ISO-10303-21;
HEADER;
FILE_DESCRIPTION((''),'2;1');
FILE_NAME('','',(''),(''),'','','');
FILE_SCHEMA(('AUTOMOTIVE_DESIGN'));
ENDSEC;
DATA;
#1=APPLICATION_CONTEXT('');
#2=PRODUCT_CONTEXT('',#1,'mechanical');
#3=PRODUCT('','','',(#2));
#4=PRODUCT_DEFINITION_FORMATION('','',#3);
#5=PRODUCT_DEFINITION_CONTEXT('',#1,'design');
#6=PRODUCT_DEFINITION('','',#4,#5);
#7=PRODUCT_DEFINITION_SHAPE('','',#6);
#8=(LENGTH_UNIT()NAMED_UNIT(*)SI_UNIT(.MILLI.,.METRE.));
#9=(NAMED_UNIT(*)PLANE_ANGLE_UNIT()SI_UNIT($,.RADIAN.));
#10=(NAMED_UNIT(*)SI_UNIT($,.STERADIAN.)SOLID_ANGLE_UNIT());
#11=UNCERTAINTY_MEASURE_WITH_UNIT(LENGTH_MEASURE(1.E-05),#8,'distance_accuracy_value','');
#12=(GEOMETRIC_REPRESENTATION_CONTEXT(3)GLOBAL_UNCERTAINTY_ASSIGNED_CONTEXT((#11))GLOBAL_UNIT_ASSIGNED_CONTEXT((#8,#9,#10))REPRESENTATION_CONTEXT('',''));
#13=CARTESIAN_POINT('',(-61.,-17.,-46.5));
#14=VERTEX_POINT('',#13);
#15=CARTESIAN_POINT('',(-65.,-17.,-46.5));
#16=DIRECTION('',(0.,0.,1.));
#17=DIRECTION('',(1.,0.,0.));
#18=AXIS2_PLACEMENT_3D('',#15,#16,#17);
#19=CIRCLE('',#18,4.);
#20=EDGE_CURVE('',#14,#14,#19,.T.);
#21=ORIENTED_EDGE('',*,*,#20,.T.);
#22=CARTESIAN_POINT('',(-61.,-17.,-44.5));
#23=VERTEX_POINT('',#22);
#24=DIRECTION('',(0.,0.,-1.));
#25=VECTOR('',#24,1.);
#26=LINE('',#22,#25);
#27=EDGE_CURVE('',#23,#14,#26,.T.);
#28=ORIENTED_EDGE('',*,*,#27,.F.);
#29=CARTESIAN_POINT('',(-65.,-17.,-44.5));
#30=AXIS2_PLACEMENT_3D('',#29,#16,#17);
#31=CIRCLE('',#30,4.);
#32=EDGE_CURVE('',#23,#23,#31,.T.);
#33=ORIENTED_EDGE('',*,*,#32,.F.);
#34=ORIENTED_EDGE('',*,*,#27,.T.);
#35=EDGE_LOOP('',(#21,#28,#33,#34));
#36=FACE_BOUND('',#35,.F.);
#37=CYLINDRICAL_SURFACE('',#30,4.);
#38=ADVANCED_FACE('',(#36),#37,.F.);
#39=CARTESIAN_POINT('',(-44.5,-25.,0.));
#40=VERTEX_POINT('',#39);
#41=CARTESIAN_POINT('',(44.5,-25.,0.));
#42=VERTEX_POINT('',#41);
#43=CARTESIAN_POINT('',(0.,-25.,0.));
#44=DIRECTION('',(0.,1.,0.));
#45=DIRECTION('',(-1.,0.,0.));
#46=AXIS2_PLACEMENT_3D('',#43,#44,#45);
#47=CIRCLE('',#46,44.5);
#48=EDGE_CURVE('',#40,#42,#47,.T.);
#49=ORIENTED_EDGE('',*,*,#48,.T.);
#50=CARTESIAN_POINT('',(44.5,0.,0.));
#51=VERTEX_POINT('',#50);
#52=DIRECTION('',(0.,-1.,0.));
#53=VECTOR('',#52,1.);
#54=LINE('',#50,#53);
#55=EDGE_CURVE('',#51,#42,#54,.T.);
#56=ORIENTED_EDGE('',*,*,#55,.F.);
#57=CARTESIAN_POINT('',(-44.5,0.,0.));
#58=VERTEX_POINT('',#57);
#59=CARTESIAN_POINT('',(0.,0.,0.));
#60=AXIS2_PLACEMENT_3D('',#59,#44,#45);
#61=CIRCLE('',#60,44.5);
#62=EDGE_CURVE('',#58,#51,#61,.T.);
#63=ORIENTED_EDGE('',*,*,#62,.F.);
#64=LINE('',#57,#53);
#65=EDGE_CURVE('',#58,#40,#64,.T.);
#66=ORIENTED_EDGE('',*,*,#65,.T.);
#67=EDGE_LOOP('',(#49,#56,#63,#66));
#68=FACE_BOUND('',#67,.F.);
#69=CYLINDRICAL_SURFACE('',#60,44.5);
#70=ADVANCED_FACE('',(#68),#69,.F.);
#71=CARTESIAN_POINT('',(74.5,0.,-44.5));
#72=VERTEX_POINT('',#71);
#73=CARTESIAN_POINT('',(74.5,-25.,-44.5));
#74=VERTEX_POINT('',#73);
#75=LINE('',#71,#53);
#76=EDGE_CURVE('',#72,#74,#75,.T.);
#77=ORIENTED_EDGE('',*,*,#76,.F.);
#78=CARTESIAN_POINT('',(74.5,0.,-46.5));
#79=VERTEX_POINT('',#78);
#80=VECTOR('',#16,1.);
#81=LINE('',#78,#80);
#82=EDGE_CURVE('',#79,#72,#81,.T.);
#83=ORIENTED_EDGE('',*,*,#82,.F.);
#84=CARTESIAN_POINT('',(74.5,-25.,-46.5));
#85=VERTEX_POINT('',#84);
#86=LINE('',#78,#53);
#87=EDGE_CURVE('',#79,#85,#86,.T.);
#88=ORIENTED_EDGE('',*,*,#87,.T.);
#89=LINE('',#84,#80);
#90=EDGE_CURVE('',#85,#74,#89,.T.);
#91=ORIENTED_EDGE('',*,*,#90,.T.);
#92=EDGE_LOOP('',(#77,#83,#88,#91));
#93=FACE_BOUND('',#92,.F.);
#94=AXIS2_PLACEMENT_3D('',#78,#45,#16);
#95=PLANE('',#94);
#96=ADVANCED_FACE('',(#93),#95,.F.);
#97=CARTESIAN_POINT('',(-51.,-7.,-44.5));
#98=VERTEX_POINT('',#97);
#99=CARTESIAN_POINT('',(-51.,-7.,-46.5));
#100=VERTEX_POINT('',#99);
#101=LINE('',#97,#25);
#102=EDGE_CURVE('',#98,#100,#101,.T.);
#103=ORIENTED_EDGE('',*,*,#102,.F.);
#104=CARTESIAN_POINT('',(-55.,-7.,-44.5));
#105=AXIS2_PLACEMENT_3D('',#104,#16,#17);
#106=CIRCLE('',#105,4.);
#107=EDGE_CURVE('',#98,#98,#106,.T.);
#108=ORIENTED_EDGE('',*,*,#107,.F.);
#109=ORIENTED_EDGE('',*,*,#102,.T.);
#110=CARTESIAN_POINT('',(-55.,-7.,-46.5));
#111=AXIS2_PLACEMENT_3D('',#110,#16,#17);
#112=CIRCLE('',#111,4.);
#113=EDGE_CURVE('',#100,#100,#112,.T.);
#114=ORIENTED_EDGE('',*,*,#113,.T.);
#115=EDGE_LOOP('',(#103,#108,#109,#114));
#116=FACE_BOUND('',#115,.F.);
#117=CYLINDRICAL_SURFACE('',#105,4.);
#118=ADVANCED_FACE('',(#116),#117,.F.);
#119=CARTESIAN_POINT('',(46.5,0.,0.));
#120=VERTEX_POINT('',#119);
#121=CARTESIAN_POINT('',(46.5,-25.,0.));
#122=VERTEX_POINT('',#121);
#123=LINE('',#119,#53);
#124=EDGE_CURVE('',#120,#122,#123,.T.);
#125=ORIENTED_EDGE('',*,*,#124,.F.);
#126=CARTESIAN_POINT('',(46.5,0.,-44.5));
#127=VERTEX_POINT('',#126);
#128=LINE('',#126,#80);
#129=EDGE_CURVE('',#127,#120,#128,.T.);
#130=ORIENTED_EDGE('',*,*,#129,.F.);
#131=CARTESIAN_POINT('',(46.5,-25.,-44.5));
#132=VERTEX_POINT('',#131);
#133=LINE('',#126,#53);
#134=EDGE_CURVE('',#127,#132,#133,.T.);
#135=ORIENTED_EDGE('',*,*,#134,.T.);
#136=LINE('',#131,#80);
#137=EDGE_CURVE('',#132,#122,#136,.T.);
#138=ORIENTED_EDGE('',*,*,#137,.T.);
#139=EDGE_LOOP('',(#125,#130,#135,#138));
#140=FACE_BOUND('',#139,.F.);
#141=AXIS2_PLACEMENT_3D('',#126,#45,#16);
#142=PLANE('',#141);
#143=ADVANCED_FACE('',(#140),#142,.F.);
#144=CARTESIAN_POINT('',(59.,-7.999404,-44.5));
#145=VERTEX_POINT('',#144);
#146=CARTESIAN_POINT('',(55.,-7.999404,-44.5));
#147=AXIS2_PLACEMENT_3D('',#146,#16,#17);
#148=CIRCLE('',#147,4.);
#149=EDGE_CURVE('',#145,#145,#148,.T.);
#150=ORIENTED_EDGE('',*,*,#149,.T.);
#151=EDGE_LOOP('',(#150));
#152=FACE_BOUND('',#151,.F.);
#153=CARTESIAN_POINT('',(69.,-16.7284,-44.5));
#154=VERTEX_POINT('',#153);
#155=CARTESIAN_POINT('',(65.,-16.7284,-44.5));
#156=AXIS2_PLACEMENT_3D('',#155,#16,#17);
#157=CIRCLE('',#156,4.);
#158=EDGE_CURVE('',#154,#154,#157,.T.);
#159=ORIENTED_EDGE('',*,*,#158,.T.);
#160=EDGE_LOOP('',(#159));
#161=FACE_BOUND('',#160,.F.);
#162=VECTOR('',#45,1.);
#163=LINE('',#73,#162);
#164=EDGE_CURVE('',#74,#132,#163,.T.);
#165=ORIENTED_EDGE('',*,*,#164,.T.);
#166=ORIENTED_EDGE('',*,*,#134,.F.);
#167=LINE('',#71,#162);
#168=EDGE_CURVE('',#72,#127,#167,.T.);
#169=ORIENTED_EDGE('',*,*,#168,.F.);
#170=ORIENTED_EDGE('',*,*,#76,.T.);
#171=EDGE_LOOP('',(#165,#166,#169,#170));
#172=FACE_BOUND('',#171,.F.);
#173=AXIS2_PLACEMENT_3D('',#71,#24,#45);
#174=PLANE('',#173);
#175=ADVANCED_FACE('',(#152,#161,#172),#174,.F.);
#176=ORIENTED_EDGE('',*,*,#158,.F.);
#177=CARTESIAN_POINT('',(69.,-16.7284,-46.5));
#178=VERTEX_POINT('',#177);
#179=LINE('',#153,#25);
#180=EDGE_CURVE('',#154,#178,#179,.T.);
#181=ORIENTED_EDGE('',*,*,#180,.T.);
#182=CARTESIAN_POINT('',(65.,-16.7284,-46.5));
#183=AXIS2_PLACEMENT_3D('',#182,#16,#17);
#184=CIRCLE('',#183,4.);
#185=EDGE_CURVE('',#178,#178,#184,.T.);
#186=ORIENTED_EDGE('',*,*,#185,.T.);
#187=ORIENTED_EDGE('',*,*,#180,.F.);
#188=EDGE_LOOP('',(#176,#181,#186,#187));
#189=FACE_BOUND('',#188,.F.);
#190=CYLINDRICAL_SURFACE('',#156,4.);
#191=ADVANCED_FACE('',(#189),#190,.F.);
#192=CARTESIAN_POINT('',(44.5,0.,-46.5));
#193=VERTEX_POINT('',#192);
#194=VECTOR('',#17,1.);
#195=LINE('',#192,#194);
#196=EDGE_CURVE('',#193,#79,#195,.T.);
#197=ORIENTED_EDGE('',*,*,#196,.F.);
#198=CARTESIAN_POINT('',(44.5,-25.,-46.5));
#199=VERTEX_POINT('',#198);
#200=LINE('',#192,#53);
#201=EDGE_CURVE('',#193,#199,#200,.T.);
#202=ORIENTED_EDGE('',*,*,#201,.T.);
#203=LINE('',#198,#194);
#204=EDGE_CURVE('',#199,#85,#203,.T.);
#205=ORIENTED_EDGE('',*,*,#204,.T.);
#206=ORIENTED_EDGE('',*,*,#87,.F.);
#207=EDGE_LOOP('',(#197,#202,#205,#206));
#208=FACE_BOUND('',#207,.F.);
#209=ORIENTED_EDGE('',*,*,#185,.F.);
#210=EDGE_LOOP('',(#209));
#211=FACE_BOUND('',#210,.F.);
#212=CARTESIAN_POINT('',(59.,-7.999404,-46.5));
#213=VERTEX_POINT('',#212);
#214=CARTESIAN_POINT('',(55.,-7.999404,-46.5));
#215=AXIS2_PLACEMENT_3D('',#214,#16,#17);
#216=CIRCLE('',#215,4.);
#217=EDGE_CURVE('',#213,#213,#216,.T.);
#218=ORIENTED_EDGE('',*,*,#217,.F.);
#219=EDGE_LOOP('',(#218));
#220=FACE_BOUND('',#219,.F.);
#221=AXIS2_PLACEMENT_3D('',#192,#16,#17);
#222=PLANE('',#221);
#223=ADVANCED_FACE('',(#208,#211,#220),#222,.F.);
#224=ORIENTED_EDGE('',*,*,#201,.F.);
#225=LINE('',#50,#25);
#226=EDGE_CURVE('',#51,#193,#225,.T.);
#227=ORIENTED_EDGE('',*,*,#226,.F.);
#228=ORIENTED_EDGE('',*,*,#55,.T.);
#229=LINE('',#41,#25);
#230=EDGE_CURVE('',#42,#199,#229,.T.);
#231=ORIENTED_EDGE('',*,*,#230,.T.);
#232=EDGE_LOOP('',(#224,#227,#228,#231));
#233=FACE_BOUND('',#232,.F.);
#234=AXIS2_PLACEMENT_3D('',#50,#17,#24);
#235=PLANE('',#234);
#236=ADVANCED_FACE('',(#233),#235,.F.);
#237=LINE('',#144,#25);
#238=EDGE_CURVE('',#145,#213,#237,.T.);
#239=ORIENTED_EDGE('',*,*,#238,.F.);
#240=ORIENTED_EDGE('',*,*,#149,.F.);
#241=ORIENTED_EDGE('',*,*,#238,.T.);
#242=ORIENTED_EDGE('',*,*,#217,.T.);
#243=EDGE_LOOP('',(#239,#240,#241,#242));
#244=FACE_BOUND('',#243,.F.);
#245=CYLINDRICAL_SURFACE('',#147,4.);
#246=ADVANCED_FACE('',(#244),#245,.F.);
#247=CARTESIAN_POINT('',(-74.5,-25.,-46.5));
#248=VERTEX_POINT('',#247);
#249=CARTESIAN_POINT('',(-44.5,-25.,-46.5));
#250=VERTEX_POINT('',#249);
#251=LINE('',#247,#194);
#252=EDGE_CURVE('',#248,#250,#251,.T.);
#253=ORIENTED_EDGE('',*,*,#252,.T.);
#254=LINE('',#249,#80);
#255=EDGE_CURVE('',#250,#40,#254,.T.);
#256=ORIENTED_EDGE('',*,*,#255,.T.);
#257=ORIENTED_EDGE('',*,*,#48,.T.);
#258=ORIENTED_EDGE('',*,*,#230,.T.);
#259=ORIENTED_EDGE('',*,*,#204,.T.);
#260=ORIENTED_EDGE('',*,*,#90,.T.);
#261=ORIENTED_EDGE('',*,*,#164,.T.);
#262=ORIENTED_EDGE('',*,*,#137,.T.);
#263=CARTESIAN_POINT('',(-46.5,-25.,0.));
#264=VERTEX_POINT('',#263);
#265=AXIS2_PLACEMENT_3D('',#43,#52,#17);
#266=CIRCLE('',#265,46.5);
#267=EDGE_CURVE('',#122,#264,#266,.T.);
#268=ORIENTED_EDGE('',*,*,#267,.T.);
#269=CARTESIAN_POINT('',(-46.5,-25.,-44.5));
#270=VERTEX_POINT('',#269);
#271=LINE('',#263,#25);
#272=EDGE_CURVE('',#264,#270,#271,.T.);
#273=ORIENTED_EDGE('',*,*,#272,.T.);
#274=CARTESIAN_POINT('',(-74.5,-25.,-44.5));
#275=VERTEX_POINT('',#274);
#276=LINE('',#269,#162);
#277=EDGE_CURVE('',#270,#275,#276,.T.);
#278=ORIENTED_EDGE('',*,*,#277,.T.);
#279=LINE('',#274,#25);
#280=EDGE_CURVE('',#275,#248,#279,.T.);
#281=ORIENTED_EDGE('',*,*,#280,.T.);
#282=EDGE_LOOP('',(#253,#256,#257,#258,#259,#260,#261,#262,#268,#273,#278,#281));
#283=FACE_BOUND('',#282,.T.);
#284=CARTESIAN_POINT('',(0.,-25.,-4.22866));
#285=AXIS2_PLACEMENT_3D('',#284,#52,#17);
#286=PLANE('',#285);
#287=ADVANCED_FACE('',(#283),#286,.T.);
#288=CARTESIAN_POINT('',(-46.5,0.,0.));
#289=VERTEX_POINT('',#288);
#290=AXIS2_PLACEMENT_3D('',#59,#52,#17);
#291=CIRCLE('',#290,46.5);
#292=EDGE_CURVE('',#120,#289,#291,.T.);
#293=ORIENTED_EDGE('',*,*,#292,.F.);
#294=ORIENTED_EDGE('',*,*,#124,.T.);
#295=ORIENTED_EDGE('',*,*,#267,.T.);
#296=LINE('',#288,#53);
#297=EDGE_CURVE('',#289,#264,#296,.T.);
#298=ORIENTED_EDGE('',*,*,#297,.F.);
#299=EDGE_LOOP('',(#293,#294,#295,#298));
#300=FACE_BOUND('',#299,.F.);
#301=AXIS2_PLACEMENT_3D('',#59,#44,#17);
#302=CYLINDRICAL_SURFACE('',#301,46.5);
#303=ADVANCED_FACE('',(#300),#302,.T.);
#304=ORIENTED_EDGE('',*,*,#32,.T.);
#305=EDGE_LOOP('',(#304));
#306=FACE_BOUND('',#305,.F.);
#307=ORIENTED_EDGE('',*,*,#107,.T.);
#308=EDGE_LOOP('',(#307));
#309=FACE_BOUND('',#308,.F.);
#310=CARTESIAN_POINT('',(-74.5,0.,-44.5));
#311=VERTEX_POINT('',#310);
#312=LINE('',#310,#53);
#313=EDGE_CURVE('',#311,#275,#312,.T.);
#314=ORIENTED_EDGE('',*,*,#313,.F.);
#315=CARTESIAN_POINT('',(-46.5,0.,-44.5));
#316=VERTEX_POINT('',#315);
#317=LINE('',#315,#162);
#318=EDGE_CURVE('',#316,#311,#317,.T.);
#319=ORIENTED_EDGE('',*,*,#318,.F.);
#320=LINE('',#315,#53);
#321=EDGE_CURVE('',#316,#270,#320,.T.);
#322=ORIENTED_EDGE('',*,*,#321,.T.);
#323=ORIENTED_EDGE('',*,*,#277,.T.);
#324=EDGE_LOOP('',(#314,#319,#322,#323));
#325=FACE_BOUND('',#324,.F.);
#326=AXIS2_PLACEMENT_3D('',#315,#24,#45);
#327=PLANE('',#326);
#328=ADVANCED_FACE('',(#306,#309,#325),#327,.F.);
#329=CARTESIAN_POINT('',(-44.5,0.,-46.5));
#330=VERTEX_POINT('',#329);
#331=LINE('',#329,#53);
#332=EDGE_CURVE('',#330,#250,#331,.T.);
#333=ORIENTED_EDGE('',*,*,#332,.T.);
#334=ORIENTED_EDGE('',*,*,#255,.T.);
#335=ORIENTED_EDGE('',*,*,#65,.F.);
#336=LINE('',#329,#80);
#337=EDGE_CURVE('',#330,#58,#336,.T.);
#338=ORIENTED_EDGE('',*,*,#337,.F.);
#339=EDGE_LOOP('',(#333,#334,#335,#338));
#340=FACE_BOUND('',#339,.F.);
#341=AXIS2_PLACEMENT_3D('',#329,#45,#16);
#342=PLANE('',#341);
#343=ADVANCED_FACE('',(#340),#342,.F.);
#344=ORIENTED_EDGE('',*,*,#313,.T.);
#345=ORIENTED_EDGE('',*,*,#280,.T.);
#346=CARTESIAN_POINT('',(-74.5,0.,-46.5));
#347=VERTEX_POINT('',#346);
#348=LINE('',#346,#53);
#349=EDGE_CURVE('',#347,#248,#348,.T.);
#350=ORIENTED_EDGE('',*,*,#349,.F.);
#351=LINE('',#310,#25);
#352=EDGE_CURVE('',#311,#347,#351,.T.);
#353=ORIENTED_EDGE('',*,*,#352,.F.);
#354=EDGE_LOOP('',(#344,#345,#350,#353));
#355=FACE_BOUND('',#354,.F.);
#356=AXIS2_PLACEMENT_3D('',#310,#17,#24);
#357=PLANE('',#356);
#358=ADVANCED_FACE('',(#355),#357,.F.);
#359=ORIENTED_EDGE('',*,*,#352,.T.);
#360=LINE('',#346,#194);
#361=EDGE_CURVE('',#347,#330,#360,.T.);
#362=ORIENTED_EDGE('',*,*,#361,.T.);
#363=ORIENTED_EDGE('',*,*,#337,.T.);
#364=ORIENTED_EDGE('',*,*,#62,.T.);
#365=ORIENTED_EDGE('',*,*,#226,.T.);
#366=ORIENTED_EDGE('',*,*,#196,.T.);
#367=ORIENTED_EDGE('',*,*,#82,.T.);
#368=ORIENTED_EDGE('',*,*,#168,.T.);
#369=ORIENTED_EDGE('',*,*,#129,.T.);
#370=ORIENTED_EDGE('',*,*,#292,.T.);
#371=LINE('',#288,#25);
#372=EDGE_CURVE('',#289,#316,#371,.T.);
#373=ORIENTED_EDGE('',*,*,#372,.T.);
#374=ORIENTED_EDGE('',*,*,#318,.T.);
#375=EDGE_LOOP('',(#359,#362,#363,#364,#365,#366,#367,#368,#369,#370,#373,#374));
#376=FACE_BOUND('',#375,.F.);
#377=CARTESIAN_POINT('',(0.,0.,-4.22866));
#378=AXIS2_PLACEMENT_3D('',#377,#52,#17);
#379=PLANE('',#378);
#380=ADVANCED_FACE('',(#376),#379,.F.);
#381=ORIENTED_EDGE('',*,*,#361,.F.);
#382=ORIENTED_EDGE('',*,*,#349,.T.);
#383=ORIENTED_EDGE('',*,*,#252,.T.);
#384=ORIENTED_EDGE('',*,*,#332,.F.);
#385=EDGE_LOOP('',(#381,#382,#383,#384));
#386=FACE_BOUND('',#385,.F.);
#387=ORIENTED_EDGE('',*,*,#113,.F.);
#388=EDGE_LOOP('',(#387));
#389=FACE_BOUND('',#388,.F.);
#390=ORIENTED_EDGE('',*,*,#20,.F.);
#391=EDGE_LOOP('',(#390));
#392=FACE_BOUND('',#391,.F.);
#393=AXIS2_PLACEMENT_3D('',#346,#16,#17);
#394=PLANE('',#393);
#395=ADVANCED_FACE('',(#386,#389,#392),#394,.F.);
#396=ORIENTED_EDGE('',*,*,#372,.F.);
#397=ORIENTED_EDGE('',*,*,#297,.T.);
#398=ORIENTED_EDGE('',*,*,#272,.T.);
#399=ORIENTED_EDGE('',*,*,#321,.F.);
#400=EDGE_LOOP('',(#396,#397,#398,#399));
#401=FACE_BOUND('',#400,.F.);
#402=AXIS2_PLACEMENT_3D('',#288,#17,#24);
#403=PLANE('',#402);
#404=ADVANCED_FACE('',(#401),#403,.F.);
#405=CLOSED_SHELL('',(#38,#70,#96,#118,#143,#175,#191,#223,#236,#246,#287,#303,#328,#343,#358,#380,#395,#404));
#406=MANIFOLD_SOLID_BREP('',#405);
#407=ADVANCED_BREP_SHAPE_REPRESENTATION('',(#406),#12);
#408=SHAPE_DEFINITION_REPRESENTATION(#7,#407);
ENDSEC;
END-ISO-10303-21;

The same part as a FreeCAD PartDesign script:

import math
import FreeCAD as App
import Part
import Sketcher

V = App.Vector

doc = App.newDocument("Part")
params = doc.addObject("Spreadsheet::Sheet", "Params")
for row, (alias, value) in enumerate([
    ("sketch1_radius", "44.5 mm"),
    ("sketch1_radius2", "46.5 mm"),
    ("sketch1_width", "30 mm"),
    ("sketch1_height", "2 mm"),
    ("sketch1_height2", "46.5 mm"),
    ("pad1_length", "25 mm"),
    ("sketch2_diameter", "8 mm"),
], start=1):
    params.set(f"A{row}", alias)
    params.set(f"B{row}", "=" + value)
    params.setAlias(f"B{row}", alias)

body = doc.addObject("PartDesign::Body", "Body")

# Sketch on XZ plane
sketch1 = body.newObject("Sketcher::SketchObject", "Sketch")
sketch1.AttachmentSupport = (doc.getObject("XZ_Plane"), [""])
sketch1.MapMode = "FlatFace"
sketch1.addGeometry([
    Part.ArcOfCircle(Part.Circle(V(0, 0, 0), V(0, 0, 1), 44.5), math.radians(0), math.radians(180)),  # 0
    Part.LineSegment(V(44.5, 0, 0), V(44.5, -46.5, 0)),  # 1
    Part.LineSegment(V(44.5, -46.5, 0), V(74.5, -46.5, 0)),  # 2
    Part.LineSegment(V(74.5, -46.5, 0), V(74.5, -44.5, 0)),  # 3
    Part.LineSegment(V(74.5, -44.5, 0), V(46.5, -44.5, 0)),  # 4
    Part.LineSegment(V(46.5, -44.5, 0), V(46.5, 0, 0)),  # 5
    Part.ArcOfCircle(Part.Circle(V(0, 0, 0), V(0, 0, 1), 46.5), math.radians(0), math.radians(180)),  # 6
    Part.LineSegment(V(-46.5, 0, 0), V(-46.5, -44.5, 0)),  # 7
    Part.LineSegment(V(-46.5, -44.5, 0), V(-74.5, -44.5, 0)),  # 8
    Part.LineSegment(V(-74.5, -44.5, 0), V(-74.5, -46.5, 0)),  # 9
    Part.LineSegment(V(-74.5, -46.5, 0), V(-44.5, -46.5, 0)),  # 10
    Part.LineSegment(V(-44.5, -46.5, 0), V(-44.5, 0, 0)),  # 11
], False)
sketch1.addConstraint([
    Sketcher.Constraint("Tangent", 0, 1, 1, 1),
    Sketcher.Constraint("Coincident", 1, 2, 2, 1),
    Sketcher.Constraint("Coincident", 2, 2, 3, 1),
    Sketcher.Constraint("Coincident", 3, 2, 4, 1),
    Sketcher.Constraint("Coincident", 4, 2, 5, 1),
    Sketcher.Constraint("Tangent", 5, 2, 6, 1),
    Sketcher.Constraint("Tangent", 6, 2, 7, 1),
    Sketcher.Constraint("Coincident", 7, 2, 8, 1),
    Sketcher.Constraint("Coincident", 8, 2, 9, 1),
    Sketcher.Constraint("Coincident", 9, 2, 10, 1),
    Sketcher.Constraint("Coincident", 10, 2, 11, 1),
    Sketcher.Constraint("Tangent", 11, 2, 0, 2),
    Sketcher.Constraint("Vertical", 1),
    Sketcher.Constraint("Horizontal", 2),
    Sketcher.Constraint("Vertical", 3),
    Sketcher.Constraint("Horizontal", 4),
    Sketcher.Constraint("Vertical", 5),
    Sketcher.Constraint("Vertical", 7),
    Sketcher.Constraint("Horizontal", 8),
    Sketcher.Constraint("Vertical", 9),
    Sketcher.Constraint("Horizontal", 10),
    Sketcher.Constraint("Vertical", 11),
    Sketcher.Constraint("Coincident", 0, 3, -1, 1),
    Sketcher.Constraint("Coincident", 6, 3, -1, 1),
    Sketcher.Constraint("Symmetric", 3, 2, 8, 2, -2),
    Sketcher.Constraint("Horizontal", 2, 2, 9, 2),
    Sketcher.Constraint("Radius", 0, 44.5),
    Sketcher.Constraint("Radius", 6, 46.5),
    Sketcher.Constraint("DistanceX", 2, 1, 2, 2, 30.0),
    Sketcher.Constraint("DistanceY", 3, 1, 3, 2, 2.0),
    Sketcher.Constraint("DistanceY", 1, 2, 1, 1, 46.5),
])
sketch1.setExpression("Constraints[26]", "Params.sketch1_radius")
sketch1.setExpression("Constraints[27]", "Params.sketch1_radius2")
sketch1.setExpression("Constraints[28]", "Params.sketch1_width")
sketch1.setExpression("Constraints[29]", "Params.sketch1_height")
sketch1.setExpression("Constraints[30]", "Params.sketch1_height2")
pad1 = body.newObject("PartDesign::Pad", "Pad")
pad1.Profile = sketch1
pad1.setExpression("Length", "Params.pad1_length")

# Sketch on XY plane
sketch2 = body.newObject("Sketcher::SketchObject", "Sketch001")
sketch2.AttachmentSupport = (doc.getObject("XY_Plane"), [""])
sketch2.MapMode = "FlatFace"
sketch2.AttachmentOffset = App.Placement(V(0, 0, -44.5), App.Rotation())
sketch2.addGeometry([
    Part.Circle(V(-65, -17, 0), V(0, 0, 1), 4),
    Part.Circle(V(-55, -7, 0), V(0, 0, 1), 4),
    Part.Circle(V(55, -8, 0), V(0, 0, 1), 4),
    Part.Circle(V(65, -16.7, 0), V(0, 0, 1), 4),
], False)
sketch2.addConstraint([
    Sketcher.Constraint("Equal", 0, 1),
    Sketcher.Constraint("Equal", 1, 2),
    Sketcher.Constraint("Equal", 2, 3),
    Sketcher.Constraint("Diameter", 0, 8.0),
    Sketcher.Constraint("DistanceX", 0, 3, -1, 1, 65.0),
    Sketcher.Constraint("DistanceY", 0, 3, -1, 1, 17.0),
    Sketcher.Constraint("DistanceX", 1, 3, -1, 1, 55.0),
    Sketcher.Constraint("DistanceY", 1, 3, -1, 1, 7.0),
    Sketcher.Constraint("DistanceX", -1, 1, 2, 3, 55.0),
    Sketcher.Constraint("DistanceX", -1, 1, 3, 3, 65.0),
    Sketcher.Constraint("DistanceY", 3, 3, -1, 1, 16.7284),
    Sketcher.Constraint("DistanceY", 2, 3, -1, 1, 7.999404),
])
sketch2.setExpression("Constraints[3]", "Params.sketch2_diameter")
pocket1 = body.newObject("PartDesign::Pocket", "Pocket")
pocket1.Profile = sketch2
pocket1.Type = "ThroughAll"

doc.recompute()
